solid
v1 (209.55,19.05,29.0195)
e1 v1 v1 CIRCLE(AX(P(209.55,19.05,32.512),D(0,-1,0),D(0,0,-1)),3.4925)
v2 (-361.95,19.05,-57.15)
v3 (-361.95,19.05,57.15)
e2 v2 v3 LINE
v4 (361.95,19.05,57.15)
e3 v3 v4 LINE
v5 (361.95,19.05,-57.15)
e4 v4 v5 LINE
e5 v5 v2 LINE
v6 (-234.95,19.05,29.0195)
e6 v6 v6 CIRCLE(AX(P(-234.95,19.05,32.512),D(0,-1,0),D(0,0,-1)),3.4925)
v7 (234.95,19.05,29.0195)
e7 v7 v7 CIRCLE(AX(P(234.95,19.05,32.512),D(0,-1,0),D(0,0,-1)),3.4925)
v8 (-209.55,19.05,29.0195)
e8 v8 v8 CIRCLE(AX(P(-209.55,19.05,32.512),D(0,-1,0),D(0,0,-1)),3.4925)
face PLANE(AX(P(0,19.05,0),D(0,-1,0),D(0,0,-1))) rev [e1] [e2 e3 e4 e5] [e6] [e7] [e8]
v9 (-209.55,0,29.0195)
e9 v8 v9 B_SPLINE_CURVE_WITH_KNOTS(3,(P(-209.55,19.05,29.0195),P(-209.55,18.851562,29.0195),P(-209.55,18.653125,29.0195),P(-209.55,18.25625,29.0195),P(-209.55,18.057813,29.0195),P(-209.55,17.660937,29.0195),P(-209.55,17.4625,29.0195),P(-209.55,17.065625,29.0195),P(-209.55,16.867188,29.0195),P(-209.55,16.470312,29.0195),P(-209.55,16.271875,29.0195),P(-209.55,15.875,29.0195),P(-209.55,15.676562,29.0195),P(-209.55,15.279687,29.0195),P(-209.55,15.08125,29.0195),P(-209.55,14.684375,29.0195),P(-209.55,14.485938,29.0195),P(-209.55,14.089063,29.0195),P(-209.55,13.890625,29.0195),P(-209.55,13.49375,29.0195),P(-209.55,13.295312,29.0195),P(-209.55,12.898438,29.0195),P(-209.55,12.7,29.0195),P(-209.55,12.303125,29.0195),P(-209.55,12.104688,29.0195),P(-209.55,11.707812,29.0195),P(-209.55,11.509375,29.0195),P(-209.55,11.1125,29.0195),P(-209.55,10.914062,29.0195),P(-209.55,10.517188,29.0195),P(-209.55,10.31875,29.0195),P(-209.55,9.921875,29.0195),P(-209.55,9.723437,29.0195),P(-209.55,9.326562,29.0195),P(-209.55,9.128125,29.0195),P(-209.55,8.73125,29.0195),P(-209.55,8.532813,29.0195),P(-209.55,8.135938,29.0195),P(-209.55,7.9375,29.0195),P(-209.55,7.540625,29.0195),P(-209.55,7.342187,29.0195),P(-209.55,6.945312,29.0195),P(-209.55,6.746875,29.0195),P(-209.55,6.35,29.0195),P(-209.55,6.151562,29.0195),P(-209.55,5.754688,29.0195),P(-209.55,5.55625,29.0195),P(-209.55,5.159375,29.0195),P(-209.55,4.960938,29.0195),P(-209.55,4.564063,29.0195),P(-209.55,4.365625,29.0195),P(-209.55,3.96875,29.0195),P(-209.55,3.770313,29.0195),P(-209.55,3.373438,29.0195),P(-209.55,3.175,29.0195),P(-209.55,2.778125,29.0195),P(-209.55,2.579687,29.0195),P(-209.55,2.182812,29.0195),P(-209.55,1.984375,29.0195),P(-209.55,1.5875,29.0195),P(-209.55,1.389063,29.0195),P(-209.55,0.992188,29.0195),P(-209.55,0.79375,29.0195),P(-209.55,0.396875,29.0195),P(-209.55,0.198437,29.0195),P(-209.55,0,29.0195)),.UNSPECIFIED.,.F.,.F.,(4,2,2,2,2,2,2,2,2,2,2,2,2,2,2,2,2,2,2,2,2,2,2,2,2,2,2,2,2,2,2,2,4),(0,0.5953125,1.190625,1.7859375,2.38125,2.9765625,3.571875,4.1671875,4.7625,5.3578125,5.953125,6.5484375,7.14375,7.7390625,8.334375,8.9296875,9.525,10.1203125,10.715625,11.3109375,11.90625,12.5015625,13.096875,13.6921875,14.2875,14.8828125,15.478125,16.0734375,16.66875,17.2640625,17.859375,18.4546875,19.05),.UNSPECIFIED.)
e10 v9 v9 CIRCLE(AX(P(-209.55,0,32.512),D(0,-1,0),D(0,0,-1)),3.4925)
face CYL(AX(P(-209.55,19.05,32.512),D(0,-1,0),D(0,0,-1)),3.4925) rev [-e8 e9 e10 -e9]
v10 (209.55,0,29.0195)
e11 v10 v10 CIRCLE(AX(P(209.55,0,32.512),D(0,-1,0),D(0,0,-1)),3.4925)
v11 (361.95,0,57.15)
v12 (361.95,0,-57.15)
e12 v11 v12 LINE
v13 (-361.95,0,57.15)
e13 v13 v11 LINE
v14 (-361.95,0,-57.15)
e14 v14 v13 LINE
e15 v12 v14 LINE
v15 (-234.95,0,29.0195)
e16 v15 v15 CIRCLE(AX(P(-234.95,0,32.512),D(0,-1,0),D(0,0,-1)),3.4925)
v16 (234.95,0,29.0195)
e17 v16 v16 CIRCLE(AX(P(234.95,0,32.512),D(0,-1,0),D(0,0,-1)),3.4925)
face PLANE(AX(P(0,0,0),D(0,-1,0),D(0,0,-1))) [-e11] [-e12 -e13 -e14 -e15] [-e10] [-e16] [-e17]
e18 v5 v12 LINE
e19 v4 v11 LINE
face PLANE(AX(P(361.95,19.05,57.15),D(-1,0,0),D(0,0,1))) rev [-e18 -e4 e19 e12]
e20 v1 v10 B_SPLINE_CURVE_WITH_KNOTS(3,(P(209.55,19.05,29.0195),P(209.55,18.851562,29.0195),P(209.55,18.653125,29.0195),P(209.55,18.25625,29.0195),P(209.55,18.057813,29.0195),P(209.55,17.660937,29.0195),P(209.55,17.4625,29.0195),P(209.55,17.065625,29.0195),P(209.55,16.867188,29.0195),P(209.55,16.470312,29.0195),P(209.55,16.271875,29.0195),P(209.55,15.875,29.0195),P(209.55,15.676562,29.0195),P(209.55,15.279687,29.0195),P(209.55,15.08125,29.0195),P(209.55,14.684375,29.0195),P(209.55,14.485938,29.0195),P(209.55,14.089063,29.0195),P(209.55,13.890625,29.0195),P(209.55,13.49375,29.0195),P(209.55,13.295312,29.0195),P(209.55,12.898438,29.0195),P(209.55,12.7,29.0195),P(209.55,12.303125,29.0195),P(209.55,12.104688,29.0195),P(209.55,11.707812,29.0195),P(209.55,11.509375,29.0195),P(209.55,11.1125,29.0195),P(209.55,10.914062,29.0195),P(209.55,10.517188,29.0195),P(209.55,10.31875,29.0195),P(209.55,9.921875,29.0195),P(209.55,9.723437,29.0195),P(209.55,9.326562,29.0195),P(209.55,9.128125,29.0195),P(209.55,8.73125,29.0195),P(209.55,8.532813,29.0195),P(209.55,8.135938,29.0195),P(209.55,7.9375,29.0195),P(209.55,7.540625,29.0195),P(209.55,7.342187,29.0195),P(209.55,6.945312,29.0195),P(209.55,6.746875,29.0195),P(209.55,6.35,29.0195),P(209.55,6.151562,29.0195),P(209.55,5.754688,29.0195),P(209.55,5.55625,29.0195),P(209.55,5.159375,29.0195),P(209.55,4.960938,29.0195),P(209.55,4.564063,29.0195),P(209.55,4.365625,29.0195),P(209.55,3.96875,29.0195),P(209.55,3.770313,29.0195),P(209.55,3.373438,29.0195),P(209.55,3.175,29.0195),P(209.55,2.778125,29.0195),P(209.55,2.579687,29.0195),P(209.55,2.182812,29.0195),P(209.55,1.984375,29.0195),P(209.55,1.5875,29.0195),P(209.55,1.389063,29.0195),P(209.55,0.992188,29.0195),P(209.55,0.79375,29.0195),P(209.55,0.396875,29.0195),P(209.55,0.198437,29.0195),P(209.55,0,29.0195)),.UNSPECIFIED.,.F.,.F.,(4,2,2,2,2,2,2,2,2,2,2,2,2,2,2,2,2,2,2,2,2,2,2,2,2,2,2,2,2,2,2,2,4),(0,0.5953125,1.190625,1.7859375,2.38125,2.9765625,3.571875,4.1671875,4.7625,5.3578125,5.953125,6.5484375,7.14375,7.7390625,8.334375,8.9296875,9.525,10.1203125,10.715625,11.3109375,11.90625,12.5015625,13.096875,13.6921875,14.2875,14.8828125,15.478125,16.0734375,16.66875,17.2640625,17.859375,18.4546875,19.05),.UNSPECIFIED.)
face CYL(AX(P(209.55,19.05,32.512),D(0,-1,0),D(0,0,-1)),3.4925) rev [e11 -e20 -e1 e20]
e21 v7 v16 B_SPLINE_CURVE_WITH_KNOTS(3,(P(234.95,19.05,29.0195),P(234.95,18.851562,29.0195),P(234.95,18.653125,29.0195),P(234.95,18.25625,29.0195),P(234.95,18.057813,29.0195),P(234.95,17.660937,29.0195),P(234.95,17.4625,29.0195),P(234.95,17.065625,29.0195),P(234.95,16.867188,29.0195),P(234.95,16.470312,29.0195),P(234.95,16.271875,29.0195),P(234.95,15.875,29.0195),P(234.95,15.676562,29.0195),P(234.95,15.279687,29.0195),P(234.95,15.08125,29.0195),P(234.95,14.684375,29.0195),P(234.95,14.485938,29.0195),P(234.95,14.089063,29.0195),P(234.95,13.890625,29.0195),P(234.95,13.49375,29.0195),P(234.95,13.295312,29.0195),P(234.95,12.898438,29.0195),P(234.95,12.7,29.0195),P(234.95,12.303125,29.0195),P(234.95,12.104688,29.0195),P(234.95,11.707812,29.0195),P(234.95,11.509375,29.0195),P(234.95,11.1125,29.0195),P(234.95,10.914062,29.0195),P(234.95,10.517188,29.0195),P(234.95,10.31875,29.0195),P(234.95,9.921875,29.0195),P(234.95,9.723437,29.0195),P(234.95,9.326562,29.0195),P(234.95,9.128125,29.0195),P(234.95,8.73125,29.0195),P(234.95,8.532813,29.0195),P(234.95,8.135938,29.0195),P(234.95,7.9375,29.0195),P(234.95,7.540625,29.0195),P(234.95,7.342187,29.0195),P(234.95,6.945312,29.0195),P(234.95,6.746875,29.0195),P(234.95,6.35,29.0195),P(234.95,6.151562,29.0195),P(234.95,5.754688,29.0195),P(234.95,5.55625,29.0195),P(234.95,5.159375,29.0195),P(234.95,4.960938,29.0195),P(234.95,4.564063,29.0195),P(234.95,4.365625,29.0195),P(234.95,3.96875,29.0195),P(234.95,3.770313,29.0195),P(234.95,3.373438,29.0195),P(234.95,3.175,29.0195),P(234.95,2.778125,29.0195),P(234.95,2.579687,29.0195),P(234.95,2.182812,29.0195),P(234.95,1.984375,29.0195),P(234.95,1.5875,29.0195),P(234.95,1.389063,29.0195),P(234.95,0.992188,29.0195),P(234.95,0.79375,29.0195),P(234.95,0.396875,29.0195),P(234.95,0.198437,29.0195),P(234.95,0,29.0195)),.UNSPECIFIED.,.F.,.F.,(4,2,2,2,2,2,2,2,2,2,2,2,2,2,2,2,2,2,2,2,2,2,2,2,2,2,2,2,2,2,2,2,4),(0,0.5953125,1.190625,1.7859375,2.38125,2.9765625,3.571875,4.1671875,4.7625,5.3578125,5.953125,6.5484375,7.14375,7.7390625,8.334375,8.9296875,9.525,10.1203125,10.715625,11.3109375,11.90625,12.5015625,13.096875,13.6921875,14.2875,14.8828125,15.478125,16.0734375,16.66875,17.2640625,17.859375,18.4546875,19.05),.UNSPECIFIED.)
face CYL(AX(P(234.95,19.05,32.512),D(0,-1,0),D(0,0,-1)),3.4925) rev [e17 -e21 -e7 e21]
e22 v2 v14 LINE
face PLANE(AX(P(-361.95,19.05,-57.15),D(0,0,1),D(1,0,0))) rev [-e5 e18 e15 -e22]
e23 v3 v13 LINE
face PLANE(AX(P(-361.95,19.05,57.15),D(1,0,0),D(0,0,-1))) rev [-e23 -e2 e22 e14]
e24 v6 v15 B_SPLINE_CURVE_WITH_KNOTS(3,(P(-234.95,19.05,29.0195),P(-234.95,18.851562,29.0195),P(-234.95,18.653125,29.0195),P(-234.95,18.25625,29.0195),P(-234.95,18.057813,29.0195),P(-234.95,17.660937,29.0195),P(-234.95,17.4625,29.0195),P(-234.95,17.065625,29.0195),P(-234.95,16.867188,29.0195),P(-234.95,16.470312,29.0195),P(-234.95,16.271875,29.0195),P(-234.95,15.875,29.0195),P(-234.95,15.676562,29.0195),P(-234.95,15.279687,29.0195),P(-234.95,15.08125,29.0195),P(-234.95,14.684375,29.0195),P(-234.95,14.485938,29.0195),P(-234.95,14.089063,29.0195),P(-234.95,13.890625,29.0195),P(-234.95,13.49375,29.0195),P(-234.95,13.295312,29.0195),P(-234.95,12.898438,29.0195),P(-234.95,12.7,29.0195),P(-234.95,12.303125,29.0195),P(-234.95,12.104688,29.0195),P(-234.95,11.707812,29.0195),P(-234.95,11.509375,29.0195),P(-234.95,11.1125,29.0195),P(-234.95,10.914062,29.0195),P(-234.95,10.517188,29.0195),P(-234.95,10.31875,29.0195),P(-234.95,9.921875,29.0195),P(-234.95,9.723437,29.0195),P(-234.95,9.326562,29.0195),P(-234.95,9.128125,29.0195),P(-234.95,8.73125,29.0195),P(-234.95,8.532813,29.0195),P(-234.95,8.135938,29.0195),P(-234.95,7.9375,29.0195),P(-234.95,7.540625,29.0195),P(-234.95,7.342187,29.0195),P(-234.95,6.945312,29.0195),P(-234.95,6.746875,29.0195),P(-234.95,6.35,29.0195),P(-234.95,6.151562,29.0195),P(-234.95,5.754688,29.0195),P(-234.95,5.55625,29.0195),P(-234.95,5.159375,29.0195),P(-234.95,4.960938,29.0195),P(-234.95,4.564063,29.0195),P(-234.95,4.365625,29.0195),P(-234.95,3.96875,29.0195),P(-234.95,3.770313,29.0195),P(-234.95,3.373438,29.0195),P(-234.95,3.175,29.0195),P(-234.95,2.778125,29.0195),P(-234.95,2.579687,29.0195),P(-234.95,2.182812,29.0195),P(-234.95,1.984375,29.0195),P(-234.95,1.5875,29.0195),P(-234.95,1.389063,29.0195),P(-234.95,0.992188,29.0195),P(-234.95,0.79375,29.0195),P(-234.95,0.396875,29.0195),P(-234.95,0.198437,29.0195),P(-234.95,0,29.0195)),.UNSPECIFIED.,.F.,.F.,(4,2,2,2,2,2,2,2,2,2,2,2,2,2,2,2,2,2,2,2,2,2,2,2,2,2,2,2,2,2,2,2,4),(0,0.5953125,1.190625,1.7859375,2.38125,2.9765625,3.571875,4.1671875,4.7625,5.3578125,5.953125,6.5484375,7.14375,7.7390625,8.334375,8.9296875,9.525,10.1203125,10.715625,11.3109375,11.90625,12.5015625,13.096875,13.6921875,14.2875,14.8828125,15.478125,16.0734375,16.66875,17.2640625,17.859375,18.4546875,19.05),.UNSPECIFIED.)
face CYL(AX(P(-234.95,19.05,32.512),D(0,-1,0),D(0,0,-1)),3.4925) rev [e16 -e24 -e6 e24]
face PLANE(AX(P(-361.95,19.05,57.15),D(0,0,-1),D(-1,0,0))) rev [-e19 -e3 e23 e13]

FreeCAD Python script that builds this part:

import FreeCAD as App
import Part
import Sketcher

V = App.Vector
Q = App.Units.Quantity


def add_polygon(sketch, points):
    """Adds a closed chain of lines whose ends are joined by coincident constraints."""
    first, n = sketch.GeometryCount, len(points)
    for a, b in zip(points, points[1:] + points[:1]):
        sketch.addGeometry(Part.LineSegment(App.Vector(*a, 0), App.Vector(*b, 0)), False)
    for i in range(n):
        sketch.addConstraint(Sketcher.Constraint("Coincident", first + i, 2, first + (i + 1) % n, 1))

doc = App.newDocument("Part")
body = doc.addObject("PartDesign::Body", "Body")

# Sketch on XZ plane
sketch1 = body.newObject("Sketcher::SketchObject", "Sketch")
sketch1.AttachmentSupport = (doc.getObject("XZ_Plane"), [""])
sketch1.MapMode = "FlatFace"
add_polygon(sketch1, [(-361.95, -57.15), (-361.95, 57.15), (361.95, 57.15), (361.95, -57.15)])  # lines 0-3
sketch1.addConstraint([
    Sketcher.Constraint("Vertical", 0),
    Sketcher.Constraint("Horizontal", 1),
    Sketcher.Constraint("Vertical", 2),
    Sketcher.Constraint("Horizontal", 3),
    Sketcher.Constraint("Symmetric", 0, 2, 2, 2, -1, 1),
    Sketcher.Constraint("DistanceX", 1, 1, 1, 2, Q("28.5 in")),
    Sketcher.Constraint("DistanceY", 0, 1, 0, 2, Q("4.5 in")),
])
pad1 = body.newObject("PartDesign::Pad", "Pad")
pad1.Profile = sketch1
pad1.Length = Q("0.75 in")
pad1.Reversed = True

# Sketch on XZ plane
sketch2 = body.newObject("Sketcher::SketchObject", "Sketch001")
sketch2.AttachmentSupport = (doc.getObject("XZ_Plane"), [""])
sketch2.MapMode = "FlatFace"
sketch2.addGeometry([
    Part.Circle(V(-234.95, 32.512, 0), V(0, 0, 1), 3.4925),
    Part.Circle(V(-209.55, 32.512, 0), V(0, 0, 1), 3.4925),
    Part.Circle(V(209.55, 32.512, 0), V(0, 0, 1), 3.4925),
    Part.Circle(V(234.95, 32.512, 0), V(0, 0, 1), 3.4925),
], False)
sketch2.addConstraint([
    Sketcher.Constraint("Equal", 0, 1),
    Sketcher.Constraint("Equal", 1, 2),
    Sketcher.Constraint("Equal", 2, 3),
    Sketcher.Constraint("Symmetric", 1, 3, 2, 3, -2),
    Sketcher.Constraint("Symmetric", 0, 3, 3, 3, -2),
    Sketcher.Constraint("Horizontal", 0, 3, 1, 3),
    Sketcher.Constraint("Diameter", 0, Q("0.275 in")),
    Sketcher.Constraint("DistanceX", 0, 3, 1, 3, Q("1 in")),
    Sketcher.Constraint("DistanceX", 1, 3, 2, 3, Q("16.5 in")),
    Sketcher.Constraint("DistanceY", -1, 1, 0, 3, Q("1.28 in")),
])
pocket1 = body.newObject("PartDesign::Pocket", "Pocket")
pocket1.Profile = sketch2
pocket1.Type = "ThroughAll"
pocket1.Midplane = True

doc.recompute()
